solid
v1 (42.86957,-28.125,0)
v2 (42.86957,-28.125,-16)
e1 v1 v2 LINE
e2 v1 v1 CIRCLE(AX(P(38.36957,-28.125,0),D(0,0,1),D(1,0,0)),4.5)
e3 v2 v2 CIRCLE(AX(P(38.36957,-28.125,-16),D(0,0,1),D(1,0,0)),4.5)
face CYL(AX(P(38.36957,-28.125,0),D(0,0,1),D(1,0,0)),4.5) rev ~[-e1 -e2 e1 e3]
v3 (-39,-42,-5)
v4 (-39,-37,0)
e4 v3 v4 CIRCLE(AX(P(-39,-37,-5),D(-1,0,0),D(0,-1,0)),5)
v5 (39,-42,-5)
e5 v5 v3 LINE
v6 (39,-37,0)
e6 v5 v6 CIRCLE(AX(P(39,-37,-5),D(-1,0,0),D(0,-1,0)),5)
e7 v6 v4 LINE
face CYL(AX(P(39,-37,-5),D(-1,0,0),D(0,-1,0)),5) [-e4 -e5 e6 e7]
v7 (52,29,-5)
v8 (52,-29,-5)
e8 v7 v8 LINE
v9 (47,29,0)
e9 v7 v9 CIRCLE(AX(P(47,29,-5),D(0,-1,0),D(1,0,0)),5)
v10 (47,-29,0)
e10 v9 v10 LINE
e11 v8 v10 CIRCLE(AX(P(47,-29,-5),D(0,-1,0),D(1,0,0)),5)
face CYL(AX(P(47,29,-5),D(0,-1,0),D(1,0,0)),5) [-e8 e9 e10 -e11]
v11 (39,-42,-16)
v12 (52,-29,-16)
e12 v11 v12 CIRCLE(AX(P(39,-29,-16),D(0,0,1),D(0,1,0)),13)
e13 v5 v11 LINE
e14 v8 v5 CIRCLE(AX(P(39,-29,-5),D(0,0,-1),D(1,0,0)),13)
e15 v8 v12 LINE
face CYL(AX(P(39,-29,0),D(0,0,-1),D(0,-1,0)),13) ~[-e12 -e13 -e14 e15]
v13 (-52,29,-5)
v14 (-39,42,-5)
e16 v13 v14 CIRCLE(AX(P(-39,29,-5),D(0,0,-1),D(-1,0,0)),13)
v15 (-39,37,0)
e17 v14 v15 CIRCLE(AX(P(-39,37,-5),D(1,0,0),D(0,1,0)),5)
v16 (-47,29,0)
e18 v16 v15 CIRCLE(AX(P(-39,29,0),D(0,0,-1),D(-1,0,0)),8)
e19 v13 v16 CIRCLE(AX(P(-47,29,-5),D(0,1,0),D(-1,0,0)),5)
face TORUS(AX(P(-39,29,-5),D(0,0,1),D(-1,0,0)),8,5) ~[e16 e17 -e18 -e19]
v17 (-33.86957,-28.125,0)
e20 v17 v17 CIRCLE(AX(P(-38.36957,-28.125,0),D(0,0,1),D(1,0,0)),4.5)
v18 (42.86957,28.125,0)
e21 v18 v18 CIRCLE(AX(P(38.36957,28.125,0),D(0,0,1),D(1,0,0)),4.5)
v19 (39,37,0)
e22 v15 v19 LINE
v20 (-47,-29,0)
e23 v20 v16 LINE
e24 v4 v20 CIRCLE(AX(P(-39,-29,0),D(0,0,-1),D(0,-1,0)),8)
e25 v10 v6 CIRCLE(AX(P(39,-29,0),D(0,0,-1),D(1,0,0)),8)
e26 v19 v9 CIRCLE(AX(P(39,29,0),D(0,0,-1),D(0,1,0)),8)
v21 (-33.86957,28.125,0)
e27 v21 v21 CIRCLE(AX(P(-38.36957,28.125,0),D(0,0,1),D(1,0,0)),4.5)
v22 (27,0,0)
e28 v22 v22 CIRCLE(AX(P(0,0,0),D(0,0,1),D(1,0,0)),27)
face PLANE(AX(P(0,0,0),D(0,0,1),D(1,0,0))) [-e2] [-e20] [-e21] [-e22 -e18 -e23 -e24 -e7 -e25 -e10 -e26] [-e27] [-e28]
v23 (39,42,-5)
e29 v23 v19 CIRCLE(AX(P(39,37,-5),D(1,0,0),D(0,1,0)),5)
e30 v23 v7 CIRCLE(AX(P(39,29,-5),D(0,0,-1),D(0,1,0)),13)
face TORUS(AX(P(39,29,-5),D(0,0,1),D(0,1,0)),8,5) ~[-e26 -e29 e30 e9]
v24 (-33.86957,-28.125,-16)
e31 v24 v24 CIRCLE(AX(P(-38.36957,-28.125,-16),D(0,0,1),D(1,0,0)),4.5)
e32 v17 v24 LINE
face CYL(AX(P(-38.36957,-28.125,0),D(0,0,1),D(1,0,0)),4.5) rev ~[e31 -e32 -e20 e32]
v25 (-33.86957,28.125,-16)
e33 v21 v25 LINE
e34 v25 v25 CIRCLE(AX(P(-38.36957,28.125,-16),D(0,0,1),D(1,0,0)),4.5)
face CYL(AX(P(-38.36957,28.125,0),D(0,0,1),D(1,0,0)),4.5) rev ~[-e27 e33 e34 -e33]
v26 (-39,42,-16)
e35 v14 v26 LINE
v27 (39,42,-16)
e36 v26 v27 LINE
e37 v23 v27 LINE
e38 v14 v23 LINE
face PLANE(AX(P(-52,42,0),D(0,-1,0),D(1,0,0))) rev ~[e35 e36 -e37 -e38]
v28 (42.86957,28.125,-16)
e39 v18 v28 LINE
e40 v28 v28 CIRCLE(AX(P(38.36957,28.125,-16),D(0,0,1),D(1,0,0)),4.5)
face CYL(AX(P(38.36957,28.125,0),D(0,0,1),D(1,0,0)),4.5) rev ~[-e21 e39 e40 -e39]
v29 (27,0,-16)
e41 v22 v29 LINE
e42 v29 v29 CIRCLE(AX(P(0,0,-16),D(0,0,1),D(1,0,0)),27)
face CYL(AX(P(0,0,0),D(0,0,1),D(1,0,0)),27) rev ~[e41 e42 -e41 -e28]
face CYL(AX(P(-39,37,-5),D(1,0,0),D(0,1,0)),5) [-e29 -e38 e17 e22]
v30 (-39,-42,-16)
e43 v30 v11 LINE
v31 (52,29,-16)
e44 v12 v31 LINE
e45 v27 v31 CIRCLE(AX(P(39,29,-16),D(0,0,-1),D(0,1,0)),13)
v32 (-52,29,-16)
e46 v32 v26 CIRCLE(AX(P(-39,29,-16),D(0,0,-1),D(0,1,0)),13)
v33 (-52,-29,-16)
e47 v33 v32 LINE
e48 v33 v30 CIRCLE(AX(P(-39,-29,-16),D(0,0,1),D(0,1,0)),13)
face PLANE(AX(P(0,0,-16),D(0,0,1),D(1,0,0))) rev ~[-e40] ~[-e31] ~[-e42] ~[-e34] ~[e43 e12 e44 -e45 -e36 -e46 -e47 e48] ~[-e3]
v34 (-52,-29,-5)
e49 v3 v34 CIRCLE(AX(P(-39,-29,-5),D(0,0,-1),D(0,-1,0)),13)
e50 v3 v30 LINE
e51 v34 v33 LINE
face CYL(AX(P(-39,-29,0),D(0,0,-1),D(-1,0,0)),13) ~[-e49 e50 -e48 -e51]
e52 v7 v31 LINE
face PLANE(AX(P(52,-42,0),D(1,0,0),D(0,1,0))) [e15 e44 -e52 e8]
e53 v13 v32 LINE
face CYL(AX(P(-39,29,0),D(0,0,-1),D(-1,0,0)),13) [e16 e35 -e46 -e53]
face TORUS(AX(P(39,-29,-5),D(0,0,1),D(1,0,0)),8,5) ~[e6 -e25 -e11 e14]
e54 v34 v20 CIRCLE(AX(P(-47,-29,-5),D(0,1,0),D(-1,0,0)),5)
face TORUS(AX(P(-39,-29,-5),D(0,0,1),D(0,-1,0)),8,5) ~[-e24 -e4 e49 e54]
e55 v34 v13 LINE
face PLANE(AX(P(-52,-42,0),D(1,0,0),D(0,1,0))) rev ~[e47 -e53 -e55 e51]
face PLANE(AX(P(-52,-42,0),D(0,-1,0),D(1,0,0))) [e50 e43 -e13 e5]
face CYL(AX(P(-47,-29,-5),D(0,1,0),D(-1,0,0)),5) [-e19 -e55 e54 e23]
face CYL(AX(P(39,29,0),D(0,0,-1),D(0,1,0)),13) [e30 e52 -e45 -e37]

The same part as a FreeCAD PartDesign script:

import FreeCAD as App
import Part
import Sketcher


def edges_at(feature, points):
    """Names of the edges that pass closest to the given points."""
    edges = feature.Shape.Edges
    near = lambda p: min(range(len(edges)), key=lambda i: edges[i].distToShape(Part.Vertex(*p))[0])
    return sorted({f"Edge{near(p) + 1}" for p in points})

doc = App.newDocument("Part")
params = doc.addObject("Spreadsheet::Sheet", "Params")
for row, (alias, value) in enumerate([
    ("sketch1_width", "104 mm"),
    ("sketch1_height", "84 mm"),
    ("pad1_length", "16 mm"),
    ("sketch2_diameter", "9 mm"),
    ("pocket1_length", "25 mm"),
    ("sketch3_diameter", "54 mm"),
    ("pocket2_length", "25 mm"),
    ("fillet_radius", "13 mm"),
    ("fillet2_radius", "5 mm"),
], start=1):
    params.set(f"A{row}", alias)
    params.set(f"B{row}", "=" + value)
    params.setAlias(f"B{row}", alias)

body = doc.addObject("PartDesign::Body", "Body")

sketch1 = body.newObject("Sketcher::SketchObject", "Sketch")
sketch1.AttachmentSupport = (doc.getObject("XY_Plane"), [""])
sketch1.MapMode = "FlatFace"
sketch1.addGeometry([
    Part.LineSegment(App.Vector(-52, 42, 0), App.Vector(-52, -42, 0)),
    Part.LineSegment(App.Vector(-52, -42, 0), App.Vector(52, -42, 0)),
    Part.LineSegment(App.Vector(52, -42, 0), App.Vector(52, 42, 0)),
    Part.LineSegment(App.Vector(52, 42, 0), App.Vector(-52, 42, 0)),
], False)
sketch1.addConstraint([
    Sketcher.Constraint("Coincident", 0, 2, 1, 1),
    Sketcher.Constraint("Coincident", 1, 2, 2, 1),
    Sketcher.Constraint("Coincident", 2, 2, 3, 1),
    Sketcher.Constraint("Coincident", 3, 2, 0, 1),
    Sketcher.Constraint("Vertical", 0),
    Sketcher.Constraint("Horizontal", 1),
    Sketcher.Constraint("Vertical", 2),
    Sketcher.Constraint("Horizontal", 3),
    Sketcher.Constraint("Symmetric", 0, 2, 2, 2, -1, 1),
    Sketcher.Constraint("DistanceX", 1, 1, 1, 2, 104.0),
    Sketcher.Constraint("DistanceY", 0, 2, 0, 1, 84.0),
])
sketch1.setExpression("Constraints[9]", "Params.sketch1_width")
sketch1.setExpression("Constraints[10]", "Params.sketch1_height")
pad1 = body.newObject("PartDesign::Pad", "Pad")
pad1.Profile = sketch1
pad1.setExpression("Length", "Params.pad1_length")
pad1.Reversed = True

sketch2 = body.newObject("Sketcher::SketchObject", "Sketch001")
sketch2.AttachmentSupport = (doc.getObject("XY_Plane"), [""])
sketch2.MapMode = "FlatFace"
sketch2.addGeometry([
    Part.Circle(App.Vector(38.36957, 28.125, 0), App.Vector(0, 0, 1), 4.5),
    Part.Circle(App.Vector(38.36957, -28.125, 0), App.Vector(0, 0, 1), 4.5),
    Part.Circle(App.Vector(-38.36957, 28.125, 0), App.Vector(0, 0, 1), 4.5),
    Part.Circle(App.Vector(-38.36957, -28.125, 0), App.Vector(0, 0, 1), 4.5),
], False)
sketch2.addConstraint([
    Sketcher.Constraint("Equal", 0, 1),
    Sketcher.Constraint("Equal", 1, 2),
    Sketcher.Constraint("Equal", 2, 3),
    Sketcher.Constraint("Symmetric", 1, 3, 2, 3, -1, 1),
    Sketcher.Constraint("Symmetric", 0, 3, 3, 3, -1, 1),
    Sketcher.Constraint("Symmetric", 0, 3, 2, 3, -2),
    Sketcher.Constraint("Diameter", 0, 9.0),
    Sketcher.Constraint("DistanceY", 1, 3, 0, 3, 56.25),
    Sketcher.Constraint("DistanceX", -1, 1, 0, 3, 38.36957),
])
sketch2.setExpression("Constraints[6]", "Params.sketch2_diameter")
pocket1 = body.newObject("PartDesign::Pocket", "Pocket")
pocket1.Profile = sketch2
pocket1.setExpression("Length", "Params.pocket1_length")

sketch3 = body.newObject("Sketcher::SketchObject", "Sketch002")
sketch3.AttachmentSupport = (doc.getObject("XY_Plane"), [""])
sketch3.MapMode = "FlatFace"
sketch3.addGeometry(Part.Circle(App.Vector(0, 0, 0), App.Vector(0, 0, 1), 27), False)
sketch3.addConstraint([
    Sketcher.Constraint("Coincident", 0, 3, -1, 1),
    Sketcher.Constraint("Diameter", 0, 54.0),
])
sketch3.setExpression("Constraints[1]", "Params.sketch3_diameter")
pocket2 = body.newObject("PartDesign::Pocket", "Pocket001")
pocket2.Profile = sketch3
pocket2.setExpression("Length", "Params.pocket2_length")
doc.recompute()

fillet = body.newObject("PartDesign::Fillet", "Fillet")
fillet.Base = (pocket2, edges_at(pocket2, [
    (-52, 42, -8),
    (-52, -42, -8),
    (52, -42, -8),
    (52, 42, -8),
]))
fillet.setExpression("Radius", "Params.fillet_radius")
doc.recompute()

fillet2 = body.newObject("PartDesign::Fillet", "Fillet001")
fillet2.Base = (fillet, edges_at(fillet, [(-52, 0, 0)]))
fillet2.setExpression("Radius", "Params.fillet2_radius")

doc.recompute()
